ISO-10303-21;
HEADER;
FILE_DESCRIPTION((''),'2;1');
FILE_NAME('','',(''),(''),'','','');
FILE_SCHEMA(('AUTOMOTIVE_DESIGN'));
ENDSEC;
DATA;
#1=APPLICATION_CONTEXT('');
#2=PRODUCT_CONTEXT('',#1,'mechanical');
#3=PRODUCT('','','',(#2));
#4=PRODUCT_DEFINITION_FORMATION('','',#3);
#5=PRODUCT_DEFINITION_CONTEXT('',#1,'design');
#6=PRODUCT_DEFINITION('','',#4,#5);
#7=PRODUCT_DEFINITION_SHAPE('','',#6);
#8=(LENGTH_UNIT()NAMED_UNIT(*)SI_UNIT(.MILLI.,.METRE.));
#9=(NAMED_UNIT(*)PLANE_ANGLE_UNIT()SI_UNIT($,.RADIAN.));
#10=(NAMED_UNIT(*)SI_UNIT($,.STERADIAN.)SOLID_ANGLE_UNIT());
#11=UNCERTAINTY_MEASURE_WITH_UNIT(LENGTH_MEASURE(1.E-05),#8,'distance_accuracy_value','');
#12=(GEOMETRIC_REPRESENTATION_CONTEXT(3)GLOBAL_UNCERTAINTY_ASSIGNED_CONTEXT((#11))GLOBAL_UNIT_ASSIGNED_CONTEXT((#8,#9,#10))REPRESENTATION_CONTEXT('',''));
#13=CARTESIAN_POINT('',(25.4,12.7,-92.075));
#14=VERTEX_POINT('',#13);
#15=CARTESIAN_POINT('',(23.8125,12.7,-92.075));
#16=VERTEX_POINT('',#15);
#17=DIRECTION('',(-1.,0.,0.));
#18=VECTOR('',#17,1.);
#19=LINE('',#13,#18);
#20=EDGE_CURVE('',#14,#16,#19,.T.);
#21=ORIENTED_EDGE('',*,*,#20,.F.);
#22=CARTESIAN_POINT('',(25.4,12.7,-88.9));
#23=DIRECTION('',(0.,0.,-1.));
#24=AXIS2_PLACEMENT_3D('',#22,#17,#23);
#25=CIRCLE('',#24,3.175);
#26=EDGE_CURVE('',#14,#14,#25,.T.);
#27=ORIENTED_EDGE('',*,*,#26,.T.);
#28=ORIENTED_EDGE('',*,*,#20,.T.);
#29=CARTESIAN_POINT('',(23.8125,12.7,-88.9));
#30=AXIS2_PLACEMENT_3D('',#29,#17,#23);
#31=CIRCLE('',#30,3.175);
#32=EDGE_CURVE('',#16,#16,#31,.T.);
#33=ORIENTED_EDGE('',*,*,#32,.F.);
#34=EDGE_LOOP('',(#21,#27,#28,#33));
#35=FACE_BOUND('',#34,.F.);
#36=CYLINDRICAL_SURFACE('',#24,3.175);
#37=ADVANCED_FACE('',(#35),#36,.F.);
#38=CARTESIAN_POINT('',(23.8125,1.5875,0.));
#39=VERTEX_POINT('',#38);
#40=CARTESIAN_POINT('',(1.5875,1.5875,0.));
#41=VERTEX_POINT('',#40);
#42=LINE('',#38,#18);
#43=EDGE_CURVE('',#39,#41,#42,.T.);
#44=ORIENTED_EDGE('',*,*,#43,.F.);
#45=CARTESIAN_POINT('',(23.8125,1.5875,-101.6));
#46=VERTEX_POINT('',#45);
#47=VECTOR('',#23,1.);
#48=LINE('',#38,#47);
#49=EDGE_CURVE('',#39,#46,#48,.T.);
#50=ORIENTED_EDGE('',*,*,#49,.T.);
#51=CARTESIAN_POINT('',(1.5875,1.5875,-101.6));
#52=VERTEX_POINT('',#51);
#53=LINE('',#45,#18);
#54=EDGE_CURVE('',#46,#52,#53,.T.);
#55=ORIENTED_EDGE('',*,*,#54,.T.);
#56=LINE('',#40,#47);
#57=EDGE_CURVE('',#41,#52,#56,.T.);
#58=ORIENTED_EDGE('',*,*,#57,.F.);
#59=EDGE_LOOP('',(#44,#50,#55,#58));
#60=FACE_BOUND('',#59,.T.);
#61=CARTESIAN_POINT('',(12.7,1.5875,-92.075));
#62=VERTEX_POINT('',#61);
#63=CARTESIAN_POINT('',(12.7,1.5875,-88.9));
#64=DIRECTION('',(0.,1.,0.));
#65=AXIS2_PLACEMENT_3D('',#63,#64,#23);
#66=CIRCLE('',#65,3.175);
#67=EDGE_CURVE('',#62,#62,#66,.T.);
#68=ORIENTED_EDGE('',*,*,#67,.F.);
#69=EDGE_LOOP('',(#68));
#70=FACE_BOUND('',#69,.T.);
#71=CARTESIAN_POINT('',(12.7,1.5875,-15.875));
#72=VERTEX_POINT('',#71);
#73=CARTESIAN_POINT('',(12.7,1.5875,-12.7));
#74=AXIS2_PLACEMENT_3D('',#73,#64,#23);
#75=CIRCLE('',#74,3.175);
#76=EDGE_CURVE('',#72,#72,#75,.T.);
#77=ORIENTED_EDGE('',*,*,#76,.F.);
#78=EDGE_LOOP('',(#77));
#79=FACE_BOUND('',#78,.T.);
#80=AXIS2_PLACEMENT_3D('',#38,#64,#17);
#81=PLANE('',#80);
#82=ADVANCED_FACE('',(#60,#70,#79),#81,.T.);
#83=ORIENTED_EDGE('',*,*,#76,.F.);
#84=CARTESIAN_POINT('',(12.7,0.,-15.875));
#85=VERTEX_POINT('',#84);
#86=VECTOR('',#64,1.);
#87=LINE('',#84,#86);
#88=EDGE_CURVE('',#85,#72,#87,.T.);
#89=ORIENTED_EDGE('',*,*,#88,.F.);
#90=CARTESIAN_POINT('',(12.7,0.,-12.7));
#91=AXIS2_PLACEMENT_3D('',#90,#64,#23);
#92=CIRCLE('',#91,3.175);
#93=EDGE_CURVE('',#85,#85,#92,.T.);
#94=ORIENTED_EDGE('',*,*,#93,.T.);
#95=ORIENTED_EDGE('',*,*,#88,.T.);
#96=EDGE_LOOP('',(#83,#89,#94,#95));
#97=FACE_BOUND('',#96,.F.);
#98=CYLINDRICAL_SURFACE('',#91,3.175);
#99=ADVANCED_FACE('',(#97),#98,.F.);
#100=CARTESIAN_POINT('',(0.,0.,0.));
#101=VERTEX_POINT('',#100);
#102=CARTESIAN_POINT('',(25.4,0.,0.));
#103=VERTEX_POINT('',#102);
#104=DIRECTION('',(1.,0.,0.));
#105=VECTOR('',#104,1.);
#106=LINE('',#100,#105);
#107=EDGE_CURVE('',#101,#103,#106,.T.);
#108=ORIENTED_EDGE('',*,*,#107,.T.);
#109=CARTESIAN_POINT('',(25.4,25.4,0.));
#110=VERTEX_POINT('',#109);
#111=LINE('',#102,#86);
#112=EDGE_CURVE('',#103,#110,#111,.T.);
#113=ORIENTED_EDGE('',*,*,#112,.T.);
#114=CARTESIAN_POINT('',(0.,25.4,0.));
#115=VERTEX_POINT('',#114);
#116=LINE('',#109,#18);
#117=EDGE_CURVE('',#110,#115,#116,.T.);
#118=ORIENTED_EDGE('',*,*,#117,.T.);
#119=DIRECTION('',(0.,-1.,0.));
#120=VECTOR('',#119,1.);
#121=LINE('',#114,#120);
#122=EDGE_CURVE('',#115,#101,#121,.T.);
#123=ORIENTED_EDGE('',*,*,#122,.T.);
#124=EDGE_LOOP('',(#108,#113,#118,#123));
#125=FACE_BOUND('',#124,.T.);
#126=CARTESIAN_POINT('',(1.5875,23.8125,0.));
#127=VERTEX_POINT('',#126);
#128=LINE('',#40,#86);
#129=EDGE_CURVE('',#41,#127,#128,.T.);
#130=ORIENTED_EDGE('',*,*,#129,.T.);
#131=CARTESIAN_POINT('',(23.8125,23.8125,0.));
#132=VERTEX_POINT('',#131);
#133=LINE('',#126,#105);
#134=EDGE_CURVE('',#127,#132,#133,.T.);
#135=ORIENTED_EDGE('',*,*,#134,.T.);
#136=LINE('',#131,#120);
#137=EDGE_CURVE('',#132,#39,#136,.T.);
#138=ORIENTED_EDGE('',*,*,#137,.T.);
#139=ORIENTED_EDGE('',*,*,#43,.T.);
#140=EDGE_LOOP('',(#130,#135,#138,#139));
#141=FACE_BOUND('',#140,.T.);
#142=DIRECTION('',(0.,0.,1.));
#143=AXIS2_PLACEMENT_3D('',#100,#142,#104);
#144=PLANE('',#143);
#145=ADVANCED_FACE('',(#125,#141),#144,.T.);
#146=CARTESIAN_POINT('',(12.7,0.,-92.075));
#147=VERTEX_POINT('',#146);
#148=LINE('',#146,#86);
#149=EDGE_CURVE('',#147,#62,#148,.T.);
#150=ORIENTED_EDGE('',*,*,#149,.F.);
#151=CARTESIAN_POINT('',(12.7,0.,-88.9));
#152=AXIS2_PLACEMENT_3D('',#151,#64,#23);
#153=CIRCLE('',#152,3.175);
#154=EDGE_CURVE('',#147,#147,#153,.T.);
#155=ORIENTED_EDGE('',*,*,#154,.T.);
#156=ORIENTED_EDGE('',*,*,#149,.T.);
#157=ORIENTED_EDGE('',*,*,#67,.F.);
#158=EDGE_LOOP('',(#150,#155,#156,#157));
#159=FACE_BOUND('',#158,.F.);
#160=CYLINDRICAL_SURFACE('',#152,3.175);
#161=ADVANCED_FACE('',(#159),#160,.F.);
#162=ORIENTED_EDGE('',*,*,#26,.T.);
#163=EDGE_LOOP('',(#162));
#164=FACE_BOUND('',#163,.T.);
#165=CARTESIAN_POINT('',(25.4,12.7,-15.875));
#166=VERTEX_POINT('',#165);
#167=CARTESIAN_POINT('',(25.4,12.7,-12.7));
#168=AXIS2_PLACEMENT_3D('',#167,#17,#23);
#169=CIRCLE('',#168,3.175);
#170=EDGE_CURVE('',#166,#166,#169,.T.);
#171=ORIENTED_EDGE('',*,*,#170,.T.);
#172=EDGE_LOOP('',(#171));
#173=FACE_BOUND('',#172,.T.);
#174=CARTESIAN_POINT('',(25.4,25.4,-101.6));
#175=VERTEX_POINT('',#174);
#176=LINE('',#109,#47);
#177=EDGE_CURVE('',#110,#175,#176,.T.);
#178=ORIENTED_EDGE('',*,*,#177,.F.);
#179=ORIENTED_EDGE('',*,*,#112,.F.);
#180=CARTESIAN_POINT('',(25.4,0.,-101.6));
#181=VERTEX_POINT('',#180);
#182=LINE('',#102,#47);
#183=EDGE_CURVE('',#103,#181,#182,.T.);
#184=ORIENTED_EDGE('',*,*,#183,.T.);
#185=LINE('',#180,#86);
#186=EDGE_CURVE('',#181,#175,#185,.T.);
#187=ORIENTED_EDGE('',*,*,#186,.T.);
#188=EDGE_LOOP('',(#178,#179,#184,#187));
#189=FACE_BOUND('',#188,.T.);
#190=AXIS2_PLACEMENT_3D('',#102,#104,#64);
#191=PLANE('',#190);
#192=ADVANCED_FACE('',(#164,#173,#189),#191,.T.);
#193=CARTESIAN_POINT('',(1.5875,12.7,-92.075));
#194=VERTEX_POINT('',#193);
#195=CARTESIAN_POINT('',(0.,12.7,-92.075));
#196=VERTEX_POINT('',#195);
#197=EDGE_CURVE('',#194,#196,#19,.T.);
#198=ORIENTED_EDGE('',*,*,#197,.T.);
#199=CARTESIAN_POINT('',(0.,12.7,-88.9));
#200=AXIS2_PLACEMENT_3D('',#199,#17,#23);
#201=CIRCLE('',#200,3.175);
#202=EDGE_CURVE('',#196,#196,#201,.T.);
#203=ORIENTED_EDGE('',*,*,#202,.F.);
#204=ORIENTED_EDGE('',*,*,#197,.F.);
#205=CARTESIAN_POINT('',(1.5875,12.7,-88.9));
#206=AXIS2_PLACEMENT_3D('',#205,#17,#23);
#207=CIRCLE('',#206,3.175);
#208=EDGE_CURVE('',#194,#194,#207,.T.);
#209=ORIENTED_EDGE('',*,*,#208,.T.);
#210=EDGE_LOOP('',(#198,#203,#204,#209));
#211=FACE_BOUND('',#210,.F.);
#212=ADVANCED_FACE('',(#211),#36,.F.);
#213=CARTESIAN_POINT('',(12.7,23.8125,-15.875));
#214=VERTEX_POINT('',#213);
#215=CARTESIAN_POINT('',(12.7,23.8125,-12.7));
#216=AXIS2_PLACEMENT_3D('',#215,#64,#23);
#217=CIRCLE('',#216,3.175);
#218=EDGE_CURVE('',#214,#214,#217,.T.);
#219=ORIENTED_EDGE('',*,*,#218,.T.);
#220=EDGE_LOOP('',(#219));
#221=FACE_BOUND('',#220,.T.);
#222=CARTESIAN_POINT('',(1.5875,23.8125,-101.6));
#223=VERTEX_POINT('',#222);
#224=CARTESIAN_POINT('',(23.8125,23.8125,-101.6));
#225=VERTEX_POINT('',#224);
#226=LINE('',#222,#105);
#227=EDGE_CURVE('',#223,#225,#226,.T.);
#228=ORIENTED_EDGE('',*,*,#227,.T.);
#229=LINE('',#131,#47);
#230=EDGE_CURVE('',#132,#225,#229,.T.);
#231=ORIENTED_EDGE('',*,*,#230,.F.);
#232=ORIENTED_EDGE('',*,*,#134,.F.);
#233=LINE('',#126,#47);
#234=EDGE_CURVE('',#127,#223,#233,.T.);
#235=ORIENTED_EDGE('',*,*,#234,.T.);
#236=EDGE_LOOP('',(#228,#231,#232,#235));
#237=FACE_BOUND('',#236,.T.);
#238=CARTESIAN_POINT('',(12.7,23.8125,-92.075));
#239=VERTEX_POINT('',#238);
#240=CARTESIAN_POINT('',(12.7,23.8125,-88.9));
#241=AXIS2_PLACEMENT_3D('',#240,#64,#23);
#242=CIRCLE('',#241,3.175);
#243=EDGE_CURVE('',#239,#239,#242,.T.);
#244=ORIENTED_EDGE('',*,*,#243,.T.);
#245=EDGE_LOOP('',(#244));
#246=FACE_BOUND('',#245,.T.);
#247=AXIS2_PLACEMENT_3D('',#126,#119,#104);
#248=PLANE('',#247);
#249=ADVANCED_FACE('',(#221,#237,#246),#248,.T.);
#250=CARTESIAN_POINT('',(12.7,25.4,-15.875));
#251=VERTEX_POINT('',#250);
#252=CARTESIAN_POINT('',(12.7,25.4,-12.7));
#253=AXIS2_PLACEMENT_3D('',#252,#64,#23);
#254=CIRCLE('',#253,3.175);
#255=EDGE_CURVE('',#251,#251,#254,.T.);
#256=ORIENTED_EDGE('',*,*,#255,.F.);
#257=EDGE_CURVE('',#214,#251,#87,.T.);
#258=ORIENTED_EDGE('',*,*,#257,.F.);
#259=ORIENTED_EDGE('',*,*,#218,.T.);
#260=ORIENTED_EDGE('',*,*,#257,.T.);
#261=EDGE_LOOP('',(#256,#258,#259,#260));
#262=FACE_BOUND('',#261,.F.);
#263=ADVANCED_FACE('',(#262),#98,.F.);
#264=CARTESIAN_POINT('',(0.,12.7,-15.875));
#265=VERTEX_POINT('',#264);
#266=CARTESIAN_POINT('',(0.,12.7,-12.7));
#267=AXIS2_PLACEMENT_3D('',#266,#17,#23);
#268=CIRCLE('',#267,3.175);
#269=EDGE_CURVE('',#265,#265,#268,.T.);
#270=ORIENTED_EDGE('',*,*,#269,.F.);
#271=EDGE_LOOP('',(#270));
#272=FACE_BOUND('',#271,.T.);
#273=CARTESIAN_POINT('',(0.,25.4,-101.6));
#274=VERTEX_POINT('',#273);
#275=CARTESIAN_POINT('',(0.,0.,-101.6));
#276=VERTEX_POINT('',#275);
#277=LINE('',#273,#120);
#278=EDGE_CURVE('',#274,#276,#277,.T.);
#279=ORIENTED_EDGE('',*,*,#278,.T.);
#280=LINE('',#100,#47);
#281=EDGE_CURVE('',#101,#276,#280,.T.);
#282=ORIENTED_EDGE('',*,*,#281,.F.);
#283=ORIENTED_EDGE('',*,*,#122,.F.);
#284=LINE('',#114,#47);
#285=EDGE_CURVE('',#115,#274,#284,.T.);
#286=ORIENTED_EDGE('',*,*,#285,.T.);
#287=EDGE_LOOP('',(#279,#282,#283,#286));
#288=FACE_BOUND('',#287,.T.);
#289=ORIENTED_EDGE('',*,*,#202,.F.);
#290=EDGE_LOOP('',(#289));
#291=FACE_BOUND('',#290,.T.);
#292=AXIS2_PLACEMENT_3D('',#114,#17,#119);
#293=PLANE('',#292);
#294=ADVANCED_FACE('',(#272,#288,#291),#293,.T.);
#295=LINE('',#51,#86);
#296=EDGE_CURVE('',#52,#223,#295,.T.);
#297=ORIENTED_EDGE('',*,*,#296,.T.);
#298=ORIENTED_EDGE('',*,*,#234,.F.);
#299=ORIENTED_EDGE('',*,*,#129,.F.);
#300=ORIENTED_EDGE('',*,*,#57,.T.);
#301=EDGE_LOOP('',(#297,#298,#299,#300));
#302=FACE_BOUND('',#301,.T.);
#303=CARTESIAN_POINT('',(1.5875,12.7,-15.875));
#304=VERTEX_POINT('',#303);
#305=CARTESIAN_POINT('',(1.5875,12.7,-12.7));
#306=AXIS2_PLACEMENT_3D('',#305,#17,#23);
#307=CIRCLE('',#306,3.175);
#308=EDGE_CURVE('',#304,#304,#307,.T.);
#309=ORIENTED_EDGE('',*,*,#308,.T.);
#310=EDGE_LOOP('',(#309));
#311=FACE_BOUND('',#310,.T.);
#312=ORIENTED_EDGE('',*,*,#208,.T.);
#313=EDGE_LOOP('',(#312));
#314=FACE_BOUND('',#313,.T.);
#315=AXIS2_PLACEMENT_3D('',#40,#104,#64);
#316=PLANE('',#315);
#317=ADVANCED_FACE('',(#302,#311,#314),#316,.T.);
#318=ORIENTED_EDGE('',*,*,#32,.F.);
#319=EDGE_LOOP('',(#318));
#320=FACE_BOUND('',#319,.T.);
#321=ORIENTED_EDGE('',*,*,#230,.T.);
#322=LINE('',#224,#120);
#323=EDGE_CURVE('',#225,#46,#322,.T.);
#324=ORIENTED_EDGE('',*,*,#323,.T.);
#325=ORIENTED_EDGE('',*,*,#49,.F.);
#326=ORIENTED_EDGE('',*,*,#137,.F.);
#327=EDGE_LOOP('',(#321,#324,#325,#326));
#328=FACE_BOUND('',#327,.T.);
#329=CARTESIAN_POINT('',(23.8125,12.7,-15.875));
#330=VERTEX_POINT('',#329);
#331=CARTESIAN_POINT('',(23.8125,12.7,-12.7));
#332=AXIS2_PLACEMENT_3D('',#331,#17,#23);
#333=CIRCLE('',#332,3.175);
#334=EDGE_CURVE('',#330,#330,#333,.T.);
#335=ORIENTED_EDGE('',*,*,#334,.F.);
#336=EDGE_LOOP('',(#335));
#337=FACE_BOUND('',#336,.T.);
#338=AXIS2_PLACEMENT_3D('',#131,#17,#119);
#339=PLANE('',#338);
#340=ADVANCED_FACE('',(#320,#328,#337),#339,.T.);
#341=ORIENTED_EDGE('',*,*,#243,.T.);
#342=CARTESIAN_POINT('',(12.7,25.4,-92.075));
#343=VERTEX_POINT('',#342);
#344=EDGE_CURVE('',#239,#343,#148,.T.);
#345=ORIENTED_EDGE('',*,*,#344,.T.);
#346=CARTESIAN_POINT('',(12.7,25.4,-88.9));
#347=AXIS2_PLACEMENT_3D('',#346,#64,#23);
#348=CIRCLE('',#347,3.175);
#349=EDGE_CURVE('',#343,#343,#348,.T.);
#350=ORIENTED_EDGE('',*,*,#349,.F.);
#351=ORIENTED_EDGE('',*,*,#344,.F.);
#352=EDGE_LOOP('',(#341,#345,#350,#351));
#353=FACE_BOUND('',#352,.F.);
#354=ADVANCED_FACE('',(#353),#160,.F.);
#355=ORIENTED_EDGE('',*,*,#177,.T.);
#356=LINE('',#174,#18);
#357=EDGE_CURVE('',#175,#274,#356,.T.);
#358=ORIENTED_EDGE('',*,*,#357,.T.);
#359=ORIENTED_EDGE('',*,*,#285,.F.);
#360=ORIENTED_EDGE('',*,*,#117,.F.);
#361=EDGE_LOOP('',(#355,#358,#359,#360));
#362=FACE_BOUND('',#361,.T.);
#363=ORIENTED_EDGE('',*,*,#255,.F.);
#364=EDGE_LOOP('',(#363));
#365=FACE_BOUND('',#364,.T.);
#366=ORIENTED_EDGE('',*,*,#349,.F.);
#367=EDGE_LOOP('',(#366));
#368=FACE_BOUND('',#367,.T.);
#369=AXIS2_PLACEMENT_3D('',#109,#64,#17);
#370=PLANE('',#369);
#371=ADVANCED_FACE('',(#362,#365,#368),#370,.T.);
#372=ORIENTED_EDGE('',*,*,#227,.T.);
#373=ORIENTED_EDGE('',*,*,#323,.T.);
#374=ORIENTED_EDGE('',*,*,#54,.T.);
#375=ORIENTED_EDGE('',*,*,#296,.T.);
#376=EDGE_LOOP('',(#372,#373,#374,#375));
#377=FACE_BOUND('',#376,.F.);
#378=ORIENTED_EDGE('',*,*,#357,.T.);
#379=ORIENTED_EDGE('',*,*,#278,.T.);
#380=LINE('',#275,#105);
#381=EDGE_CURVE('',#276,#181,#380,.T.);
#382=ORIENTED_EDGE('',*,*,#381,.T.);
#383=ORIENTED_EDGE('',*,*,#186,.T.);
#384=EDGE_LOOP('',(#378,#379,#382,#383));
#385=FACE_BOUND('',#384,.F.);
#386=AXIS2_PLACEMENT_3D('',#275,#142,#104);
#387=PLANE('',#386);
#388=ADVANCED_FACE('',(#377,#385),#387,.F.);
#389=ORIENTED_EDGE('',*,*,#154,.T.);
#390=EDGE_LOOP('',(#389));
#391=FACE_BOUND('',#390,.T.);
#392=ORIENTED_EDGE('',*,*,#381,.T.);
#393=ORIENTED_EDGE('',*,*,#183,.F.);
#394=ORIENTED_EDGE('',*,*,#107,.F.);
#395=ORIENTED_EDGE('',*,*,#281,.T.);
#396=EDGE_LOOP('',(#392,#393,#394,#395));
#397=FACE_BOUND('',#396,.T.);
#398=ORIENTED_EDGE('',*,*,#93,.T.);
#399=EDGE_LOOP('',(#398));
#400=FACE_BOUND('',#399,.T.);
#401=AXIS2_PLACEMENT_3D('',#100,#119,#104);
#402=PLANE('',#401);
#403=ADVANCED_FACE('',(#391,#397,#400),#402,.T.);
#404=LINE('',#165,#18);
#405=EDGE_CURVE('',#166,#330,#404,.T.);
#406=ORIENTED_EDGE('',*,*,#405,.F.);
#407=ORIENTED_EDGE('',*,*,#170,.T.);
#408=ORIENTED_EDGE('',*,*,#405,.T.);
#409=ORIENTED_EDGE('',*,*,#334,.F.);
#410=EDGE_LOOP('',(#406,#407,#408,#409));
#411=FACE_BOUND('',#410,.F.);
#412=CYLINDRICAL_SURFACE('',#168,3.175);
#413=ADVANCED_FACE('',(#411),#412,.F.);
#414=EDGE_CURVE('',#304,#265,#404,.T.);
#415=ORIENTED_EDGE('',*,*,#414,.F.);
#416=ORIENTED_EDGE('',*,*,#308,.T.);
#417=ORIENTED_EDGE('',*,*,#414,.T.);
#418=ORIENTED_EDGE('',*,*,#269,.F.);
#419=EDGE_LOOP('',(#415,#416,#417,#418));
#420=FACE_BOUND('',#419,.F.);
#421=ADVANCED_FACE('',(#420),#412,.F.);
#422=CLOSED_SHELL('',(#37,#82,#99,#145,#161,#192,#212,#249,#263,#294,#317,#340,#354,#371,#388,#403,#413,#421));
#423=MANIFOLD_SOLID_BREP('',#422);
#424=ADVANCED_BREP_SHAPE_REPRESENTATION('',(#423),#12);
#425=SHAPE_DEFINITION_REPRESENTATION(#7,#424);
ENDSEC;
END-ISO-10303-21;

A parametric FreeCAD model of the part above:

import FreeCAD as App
import Part
import Sketcher

V = App.Vector
Q = App.Units.Quantity

doc = App.newDocument("Part")
params = doc.addObject("Spreadsheet::Sheet", "Params")
for row, (alias, value) in enumerate([
    ("sketch1_width", "1 in"),
    ("pad1_length", "4 in"),
    ("sketch2_diameter", "0.25 in"),
    ("hole_diameter", "0.25 in"),
    ("hole_depth", "1 in"),
    ("sketch3_diameter", "0.25 in"),
    ("hole2_diameter", "0.25 in"),
    ("hole2_depth", "1 in"),
], start=1):
    params.set(f"A{row}", alias)
    params.set(f"B{row}", "=" + value)
    params.setAlias(f"B{row}", alias)

body = doc.addObject("PartDesign::Body", "Body")

# Sketch on XY plane
sketch1 = body.newObject("Sketcher::SketchObject", "Sketch")
sketch1.AttachmentSupport = (doc.getObject("XY_Plane"), [""])
sketch1.MapMode = "FlatFace"
sketch1.addGeometry([
    Part.LineSegment(V(0, 25.4, 0), V(0, 0, 0)),  # 0
    Part.LineSegment(V(0, 0, 0), V(25.4, 0, 0)),  # 1
    Part.LineSegment(V(25.4, 0, 0), V(25.4, 25.4, 0)),  # 2
    Part.LineSegment(V(25.4, 25.4, 0), V(0, 25.4, 0)),  # 3
    Part.LineSegment(V(1.5875, 1.5875, 0), V(1.5875, 23.8125, 0)),  # 4
    Part.LineSegment(V(1.5875, 23.8125, 0), V(23.8125, 23.8125, 0)),  # 5
    Part.LineSegment(V(23.8125, 23.8125, 0), V(23.8125, 1.5875, 0)),  # 6
    Part.LineSegment(V(23.8125, 1.5875, 0), V(1.5875, 1.5875, 0)),  # 7
], False)
sketch1.addConstraint([
    Sketcher.Constraint("Coincident", 0, 2, 1, 1),
    Sketcher.Constraint("Coincident", 1, 2, 2, 1),
    Sketcher.Constraint("Coincident", 2, 2, 3, 1),
    Sketcher.Constraint("Coincident", 3, 2, 0, 1),
    Sketcher.Constraint("Coincident", 4, 2, 5, 1),
    Sketcher.Constraint("Coincident", 5, 2, 6, 1),
    Sketcher.Constraint("Coincident", 6, 2, 7, 1),
    Sketcher.Constraint("Coincident", 7, 2, 4, 1),
    Sketcher.Constraint("Vertical", 0),
    Sketcher.Constraint("Horizontal", 1),
    Sketcher.Constraint("Vertical", 2),
    Sketcher.Constraint("Horizontal", 3),
    Sketcher.Constraint("Vertical", 4),
    Sketcher.Constraint("Horizontal", 5),
    Sketcher.Constraint("Vertical", 6),
    Sketcher.Constraint("Horizontal", 7),
    Sketcher.Constraint("Coincident", 0, 2, -1, 1),
    Sketcher.Constraint("Equal", 3, 0),
    Sketcher.Constraint("Equal", 7, 4),
    Sketcher.Constraint("DistanceX", 1, 1, 1, 2, Q("1 in")),
    Sketcher.Constraint("DistanceX", -1, 1, 4, 2, Q("0.0625 in")),
    Sketcher.Constraint("DistanceY", -1, 1, 6, 2, Q("0.0625 in")),
    Sketcher.Constraint("DistanceY", 4, 2, 3, 2, Q("0.0625 in")),
])
sketch1.setExpression("Constraints[19]", "Params.sketch1_width")
pad1 = body.newObject("PartDesign::Pad", "Pad")
pad1.Profile = sketch1
pad1.setExpression("Length", "Params.pad1_length")
pad1.Reversed = True

# Sketch on YZ plane
sketch2 = body.newObject("Sketcher::SketchObject", "Sketch001")
sketch2.AttachmentSupport = (doc.getObject("YZ_Plane"), [""])
sketch2.MapMode = "FlatFace"
sketch2.AttachmentOffset = App.Placement(V(0, 0, 1 * 25.4), App.Rotation())
sketch2.addGeometry([
    Part.Circle(V(12.7, -12.7, 0), V(0, 0, 1), 3.175),
    Part.Circle(V(12.7, -88.9, 0), V(0, 0, 1), 3.175),
], False)
sketch2.addConstraint([
    Sketcher.Constraint("Equal", 0, 1),
    Sketcher.Constraint("Vertical", 0, 3, 1, 3),
    Sketcher.Constraint("Diameter", 0, Q("0.25 in")),
    Sketcher.Constraint("DistanceY", 1, 3, 0, 3, Q("3 in")),
    Sketcher.Constraint("DistanceX", -1, 1, 0, 3, Q("0.5 in")),
    Sketcher.Constraint("DistanceY", 0, 3, -1, 1, Q("0.5 in")),
])
sketch2.setExpression("Constraints[2]", "Params.sketch2_diameter")
doc.recompute()
hole = body.newObject("PartDesign::Hole", "Hole")
hole.Profile = sketch2
hole.ThreadType = "None"
hole.setExpression("Diameter", "Params.hole_diameter")
hole.DepthType = "Dimension"
hole.setExpression("Depth", "Params.hole_depth")
hole.DrillPoint = "Angled"
hole.DrillPointAngle = 118

# Sketch on XZ plane
sketch3 = body.newObject("Sketcher::SketchObject", "Sketch002")
sketch3.AttachmentSupport = (doc.getObject("XZ_Plane"), [""])
sketch3.MapMode = "FlatFace"
sketch3.addGeometry([
    Part.Circle(V(12.7, -12.7, 0), V(0, 0, 1), 3.175),
    Part.Circle(V(12.7, -88.9, 0), V(0, 0, 1), 3.175),
], False)
sketch3.addConstraint([
    Sketcher.Constraint("Equal", 0, 1),
    Sketcher.Constraint("Vertical", 0, 3, 1, 3),
    Sketcher.Constraint("Diameter", 0, Q("0.25 in")),
    Sketcher.Constraint("DistanceY", 1, 3, 0, 3, Q("3 in")),
    Sketcher.Constraint("DistanceX", -1, 1, 0, 3, Q("0.5 in")),
    Sketcher.Constraint("DistanceY", 0, 3, -1, 1, Q("0.5 in")),
])
sketch3.setExpression("Constraints[2]", "Params.sketch3_diameter")
doc.recompute()
hole2 = body.newObject("PartDesign::Hole", "Hole001")
hole2.Profile = sketch3
hole2.ThreadType = "None"
hole2.setExpression("Diameter", "Params.hole2_diameter")
hole2.DepthType = "Dimension"
hole2.setExpression("Depth", "Params.hole2_depth")
hole2.DrillPoint = "Angled"
hole2.DrillPointAngle = 118

doc.recompute()
